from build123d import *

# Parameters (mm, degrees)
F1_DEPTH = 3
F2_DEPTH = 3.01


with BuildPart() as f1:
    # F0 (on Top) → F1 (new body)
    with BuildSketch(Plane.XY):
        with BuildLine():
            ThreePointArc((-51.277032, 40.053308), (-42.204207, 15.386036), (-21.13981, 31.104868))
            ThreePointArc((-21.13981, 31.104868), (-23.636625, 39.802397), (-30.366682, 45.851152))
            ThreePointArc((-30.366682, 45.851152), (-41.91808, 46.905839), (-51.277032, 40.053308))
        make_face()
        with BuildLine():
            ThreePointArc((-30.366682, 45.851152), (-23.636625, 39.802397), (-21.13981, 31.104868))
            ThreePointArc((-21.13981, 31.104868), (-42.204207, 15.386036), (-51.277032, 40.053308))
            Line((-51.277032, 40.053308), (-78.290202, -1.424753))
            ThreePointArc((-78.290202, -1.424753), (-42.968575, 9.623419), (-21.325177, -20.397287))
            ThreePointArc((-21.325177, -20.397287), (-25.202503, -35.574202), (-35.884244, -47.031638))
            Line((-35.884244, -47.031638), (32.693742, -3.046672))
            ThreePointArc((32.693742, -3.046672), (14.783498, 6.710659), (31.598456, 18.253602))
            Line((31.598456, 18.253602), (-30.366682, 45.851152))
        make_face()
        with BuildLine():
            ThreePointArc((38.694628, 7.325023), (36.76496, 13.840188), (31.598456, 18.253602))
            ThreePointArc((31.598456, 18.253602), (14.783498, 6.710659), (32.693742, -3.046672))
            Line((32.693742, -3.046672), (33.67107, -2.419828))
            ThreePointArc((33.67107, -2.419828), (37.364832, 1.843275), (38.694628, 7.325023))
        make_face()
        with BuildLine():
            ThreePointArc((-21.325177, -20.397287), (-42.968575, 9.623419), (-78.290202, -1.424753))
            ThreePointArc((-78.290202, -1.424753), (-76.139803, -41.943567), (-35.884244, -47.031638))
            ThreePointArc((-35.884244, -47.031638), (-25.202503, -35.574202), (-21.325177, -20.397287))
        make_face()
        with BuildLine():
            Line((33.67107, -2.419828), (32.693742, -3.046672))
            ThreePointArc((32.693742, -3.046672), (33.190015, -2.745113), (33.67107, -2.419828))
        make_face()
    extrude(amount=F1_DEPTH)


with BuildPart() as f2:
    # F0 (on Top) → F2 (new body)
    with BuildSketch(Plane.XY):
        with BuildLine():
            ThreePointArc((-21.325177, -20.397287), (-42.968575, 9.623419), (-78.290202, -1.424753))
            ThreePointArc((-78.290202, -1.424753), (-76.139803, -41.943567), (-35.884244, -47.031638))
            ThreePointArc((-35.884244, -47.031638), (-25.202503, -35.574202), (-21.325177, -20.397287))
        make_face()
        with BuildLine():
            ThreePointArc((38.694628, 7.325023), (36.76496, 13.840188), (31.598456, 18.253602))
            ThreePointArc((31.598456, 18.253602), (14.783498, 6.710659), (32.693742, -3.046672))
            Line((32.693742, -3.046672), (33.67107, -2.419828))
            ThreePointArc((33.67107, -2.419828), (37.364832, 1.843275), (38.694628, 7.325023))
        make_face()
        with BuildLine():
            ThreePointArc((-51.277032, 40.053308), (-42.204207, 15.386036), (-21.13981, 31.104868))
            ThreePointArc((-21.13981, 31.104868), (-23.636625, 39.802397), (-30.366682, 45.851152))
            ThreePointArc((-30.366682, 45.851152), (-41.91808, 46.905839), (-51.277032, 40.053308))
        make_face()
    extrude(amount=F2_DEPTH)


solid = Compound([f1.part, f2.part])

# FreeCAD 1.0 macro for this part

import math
import FreeCAD as App
import Part
import Sketcher
Q = App.Units.Quantity

doc = App.newDocument("Part")
body = doc.addObject("PartDesign::Body", "Body")

# Sketch on XY plane
sketch1 = body.newObject("Sketcher::SketchObject", "Sketch")
sketch1.AttachmentSupport = (doc.getObject("XY_Plane"), [""])
sketch1.MapMode = "FlatFace"
sketch1.addGeometry([
    Part.ArcOfCircle(Part.Circle(App.Vector(-37.536922, 31.10487, 0), App.Vector(0, 0, 1), 16.397109), math.radians(64.069102), math.radians(146.925253)),  # 0
    Part.LineSegment(App.Vector(-51.277032, 40.053308, 0), App.Vector(-78.290202, -1.424753, 0)),  # 1
    Part.ArcOfCircle(Part.Circle(App.Vector(-52.967146, -20.397287, 0), App.Vector(0, 0, 1), 31.641969), math.radians(143.158723), math.radians(302.675548)),  # 2
    Part.LineSegment(App.Vector(-35.884244, -47.031638, 0), App.Vector(32.693742, -3.046672, 0)),  # 3
    Part.ArcOfCircle(Part.Circle(App.Vector(26.730988, 7.325316, 0), App.Vector(0, 0, 1), 11.963803), math.radians(-60.105826), math.radians(-54.543127)),  # 4
    Part.ArcOfCircle(Part.Circle(App.Vector(26.731169, 7.325023, 0), App.Vector(0, 0, 1), 11.963459), math.radians(-54.543022), math.radians(0)),  # 5
    Part.ArcOfCircle(Part.Circle(App.Vector(26.73117, 7.325022, 0), App.Vector(0, 0, 1), 11.963458), math.radians(0.000004), math.radians(65.993135)),  # 6
    Part.LineSegment(App.Vector(31.598456, 18.253602, 0), App.Vector(-30.366682, 45.851152, 0)),  # 7
], False)
sketch1.addConstraint([
    Sketcher.Constraint("Coincident", 0, 2, 1, 1),
    Sketcher.Constraint("Coincident", 1, 2, 2, 1),
    Sketcher.Constraint("Coincident", 2, 2, 3, 1),
    Sketcher.Constraint("Coincident", 3, 2, 4, 1),
    Sketcher.Constraint("Coincident", 4, 2, 5, 1),
    Sketcher.Constraint("Coincident", 5, 2, 6, 1),
    Sketcher.Constraint("Coincident", 6, 2, 7, 1),
    Sketcher.Constraint("Coincident", 7, 2, 0, 1),
    Sketcher.Constraint("Coincident", 6, 3, 5, 3),
    Sketcher.Constraint("Radius", 0, Q("16.397109 mm")),
    Sketcher.Constraint("Radius", 2, Q("31.641969 mm")),
    Sketcher.Constraint("Radius", 5, Q("11.963459 mm")),
    Sketcher.Constraint("Radius", 4, Q("11.963803 mm")),
    Sketcher.Constraint("DistanceX", 1, 2, -1, 1, Q("78.290202 mm")),
    Sketcher.Constraint("DistanceX", 0, 2, 5, 3, Q("78.008201 mm")),
    Sketcher.Constraint("DistanceX", 6, 3, 4, 2, Q("6.9399 mm")),
    Sketcher.Constraint("DistanceX", 0, 3, -1, 1, Q("37.536922 mm")),
    Sketcher.Constraint("DistanceY", -1, 1, 0, 3, Q("31.10487 mm")),
    Sketcher.Constraint("DistanceX", -1, 1, 5, 3, Q("26.731169 mm")),
    Sketcher.Constraint("DistanceY", 3, 2, -1, 1, Q("3.046672 mm")),
    Sketcher.Constraint("DistanceY", 4, 2, -1, 1, Q("2.419828 mm")),
    Sketcher.Constraint("DistanceX", 0, 3, 4, 3, Q("64.267909 mm")),
    Sketcher.Constraint("DistanceY", 2, 3, 5, 3, Q("27.72231 mm")),
    Sketcher.Constraint("DistanceY", 1, 2, 0, 2, Q("41.478061 mm")),
    Sketcher.Constraint("DistanceY", 2, 2, 2, 3, Q("26.634351 mm")),
    Sketcher.Constraint("DistanceY", 4, 2, 5, 2, Q("9.744851 mm")),
    Sketcher.Constraint("DistanceX", 4, 3, 6, 2, Q("4.867468 mm")),
    Sketcher.Constraint("DistanceX", 0, 3, 7, 2, Q("7.17024 mm")),
])
pad1 = body.newObject("PartDesign::Pad", "Pad")
pad1.Profile = sketch1
pad1.Length = 3
body2 = doc.addObject("PartDesign::Body", "Body001")
body2.AllowCompound = True

# Sketch on XY plane
sketch2 = body2.newObject("Sketcher::SketchObject", "Sketch001")
sketch2.AttachmentSupport = (doc.getObject("XY_Plane001"), [""])
sketch2.MapMode = "FlatFace"
sketch2.addGeometry([
    Part.ArcOfCircle(Part.Circle(App.Vector(-53, -20.4, 0), App.Vector(0, 0, 1), 31.6), math.radians(0), math.radians(143)),  # 0
    Part.ArcOfCircle(Part.Circle(App.Vector(-53, -20.4, 0), App.Vector(0, 0, 1), 31.6), math.radians(143), math.radians(303)),  # 1
    Part.ArcOfCircle(Part.Circle(App.Vector(-53, -20.4, 0), App.Vector(0, 0, 1), 31.6), math.radians(-57), math.radians(0)),  # 2
    Part.ArcOfCircle(Part.Circle(App.Vector(26.7, 7.3, 0), App.Vector(0, 0, 1), 12), math.radians(0), math.radians(66)),  # 3
    Part.ArcOfCircle(Part.Circle(App.Vector(26.7, 7.3, 0), App.Vector(0, 0, 1), 12), math.radians(66), math.radians(300)),  # 4
    Part.LineSegment(App.Vector(32.7, -3, 0), App.Vector(33.7, -2.4, 0)),  # 5
    Part.ArcOfCircle(Part.Circle(App.Vector(26.7, 7.3, 0), App.Vector(0, 0, 1), 12), math.radians(-55), math.radians(0)),  # 6
    Part.ArcOfCircle(Part.Circle(App.Vector(-37.5, 31.1, 0), App.Vector(0, 0, 1), 16.4), math.radians(147), math.radians(360)),  # 7
    Part.ArcOfCircle(Part.Circle(App.Vector(-37.5, 31.1, 0), App.Vector(0, 0, 1), 16.4), math.radians(0), math.radians(64)),  # 8
    Part.ArcOfCircle(Part.Circle(App.Vector(-37.5, 31.1, 0), App.Vector(0, 0, 1), 16.4), math.radians(64), math.radians(147)),  # 9
], False)
sketch2.addConstraint([
    Sketcher.Constraint("Tangent", 0, 2, 1, 1),
    Sketcher.Constraint("Tangent", 1, 2, 2, 1),
    Sketcher.Constraint("Tangent", 2, 2, 0, 1),
    Sketcher.Constraint("Tangent", 3, 2, 4, 1),
    Sketcher.Constraint("Coincident", 4, 2, 5, 1),
    Sketcher.Constraint("Coincident", 5, 2, 6, 1),
    Sketcher.Constraint("Tangent", 6, 2, 3, 1),
    Sketcher.Constraint("Tangent", 7, 2, 8, 1),
    Sketcher.Constraint("Tangent", 8, 2, 9, 1),
    Sketcher.Constraint("Tangent", 9, 2, 7, 1),
    Sketcher.Constraint("Equal", 3, 4),
    Sketcher.Constraint("Equal", 4, 6),
    Sketcher.Constraint("Horizontal", 1, 3, 2, 2),
    Sketcher.Constraint("Horizontal", 4, 3, 6, 2),
    Sketcher.Constraint("Horizontal", 9, 3, 7, 2),
    Sketcher.Constraint("Radius", 0, Q("31.641969 mm")),
    Sketcher.Constraint("Radius", 3, Q("11.963458 mm")),
    Sketcher.Constraint("Radius", 7, Q("16.397111 mm")),
    Sketcher.Constraint("DistanceX", 0, 2, -1, 1, Q("78.290202 mm")),
    Sketcher.Constraint("DistanceX", 3, 3, 5, 2, Q("6.9399 mm")),
    Sketcher.Constraint("Distance", 5, Q("1.161079 mm")),
    Sketcher.Constraint("DistanceX", 2, 3, -1, 1, Q("52.967151 mm")),
    Sketcher.Constraint("DistanceX", -1, 1, 3, 3, Q("26.73117 mm")),
    Sketcher.Constraint("DistanceX", 7, 3, -1, 1, Q("37.536921 mm")),
    Sketcher.Constraint("DistanceY", -1, 1, 9, 3, Q("31.10487 mm")),
    Sketcher.Constraint("DistanceY", 4, 2, -1, 1, Q("3.046672 mm")),
    Sketcher.Constraint("DistanceY", -1, 1, 8, 2, Q("45.851152 mm")),
    Sketcher.Constraint("DistanceY", -1, 1, 9, 2, Q("40.053308 mm")),
    Sketcher.Constraint("DistanceY", 0, 3, 3, 3, Q("27.722309 mm")),
    Sketcher.Constraint("DistanceY", 1, 2, 1, 3, Q("26.634351 mm")),
    Sketcher.Constraint("DistanceY", 4, 3, 3, 2, Q("10.928579 mm")),
])
pad2 = body2.newObject("PartDesign::Pad", "Pad001")
pad2.Profile = sketch2
pad2.Length = 3.01

doc.recompute()
